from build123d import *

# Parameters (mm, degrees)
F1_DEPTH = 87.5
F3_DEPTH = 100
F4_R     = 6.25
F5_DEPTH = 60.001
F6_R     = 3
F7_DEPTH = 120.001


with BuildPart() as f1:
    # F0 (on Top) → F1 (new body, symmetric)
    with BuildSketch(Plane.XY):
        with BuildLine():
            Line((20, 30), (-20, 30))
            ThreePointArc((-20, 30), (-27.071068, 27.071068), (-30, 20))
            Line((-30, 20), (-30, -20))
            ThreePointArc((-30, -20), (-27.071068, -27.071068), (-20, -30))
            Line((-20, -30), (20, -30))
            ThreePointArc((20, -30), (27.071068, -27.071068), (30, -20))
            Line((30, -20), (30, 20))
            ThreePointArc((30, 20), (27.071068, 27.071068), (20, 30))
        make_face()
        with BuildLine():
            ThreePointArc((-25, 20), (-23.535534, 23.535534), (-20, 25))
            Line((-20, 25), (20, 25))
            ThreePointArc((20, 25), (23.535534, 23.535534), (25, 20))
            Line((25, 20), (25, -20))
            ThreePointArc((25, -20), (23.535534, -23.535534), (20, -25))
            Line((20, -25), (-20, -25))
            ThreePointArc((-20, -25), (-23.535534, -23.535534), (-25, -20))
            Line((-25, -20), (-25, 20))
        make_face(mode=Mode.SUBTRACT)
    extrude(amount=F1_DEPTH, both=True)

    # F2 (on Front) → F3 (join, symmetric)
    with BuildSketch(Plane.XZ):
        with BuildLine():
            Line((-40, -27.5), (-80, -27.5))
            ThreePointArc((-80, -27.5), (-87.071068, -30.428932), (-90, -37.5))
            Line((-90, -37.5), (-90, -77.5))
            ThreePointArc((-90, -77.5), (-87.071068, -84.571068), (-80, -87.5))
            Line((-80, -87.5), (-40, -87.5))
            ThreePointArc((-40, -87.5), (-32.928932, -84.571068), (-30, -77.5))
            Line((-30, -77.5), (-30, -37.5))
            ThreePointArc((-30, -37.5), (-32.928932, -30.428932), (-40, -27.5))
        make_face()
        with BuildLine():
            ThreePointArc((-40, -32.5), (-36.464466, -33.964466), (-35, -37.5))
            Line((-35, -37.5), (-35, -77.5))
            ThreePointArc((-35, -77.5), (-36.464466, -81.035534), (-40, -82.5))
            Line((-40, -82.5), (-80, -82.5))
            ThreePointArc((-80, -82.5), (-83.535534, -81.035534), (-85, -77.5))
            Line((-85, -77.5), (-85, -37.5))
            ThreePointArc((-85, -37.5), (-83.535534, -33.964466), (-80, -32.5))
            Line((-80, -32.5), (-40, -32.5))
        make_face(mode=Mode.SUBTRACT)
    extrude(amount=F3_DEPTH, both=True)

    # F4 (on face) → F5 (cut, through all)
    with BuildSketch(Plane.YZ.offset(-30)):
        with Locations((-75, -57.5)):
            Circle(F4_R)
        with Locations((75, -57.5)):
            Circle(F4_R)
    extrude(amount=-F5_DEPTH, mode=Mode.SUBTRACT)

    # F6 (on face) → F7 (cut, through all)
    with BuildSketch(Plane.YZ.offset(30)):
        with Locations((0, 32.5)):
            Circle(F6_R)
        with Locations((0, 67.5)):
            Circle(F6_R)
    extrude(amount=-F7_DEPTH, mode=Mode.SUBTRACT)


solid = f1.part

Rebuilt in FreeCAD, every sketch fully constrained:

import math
import FreeCAD as App
import Part
import Sketcher
from FreeCAD import Vector
Q = App.Units.Quantity

doc = App.newDocument("Part")
body = doc.addObject("PartDesign::Body", "Body")

sketch1 = doc.addObject("Sketcher::SketchObject", "Sketch")
body.addObject(sketch1)
sketch1.AttachmentSupport = (doc.XY_Plane, [""])
sketch1.MapMode = "FlatFace"
sketch1.addGeometry([
    Part.LineSegment(Vector(20, 30, 0), Vector(-20, 30, 0)),
    Part.ArcOfCircle(Part.Circle(Vector(-20.000001, 20.000001, 0), Vector(0, 0, 1), 9.999999), math.radians(89.999996), math.radians(180.000004)),
    Part.LineSegment(Vector(-30, 20, 0), Vector(-30, -20, 0)),
    Part.ArcOfCircle(Part.Circle(Vector(-20.000001, -20.000001, 0), Vector(0, 0, 1), 9.999999), math.radians(179.999996), math.radians(270.000004)),
    Part.LineSegment(Vector(-20, -30, 0), Vector(20, -30, 0)),
    Part.ArcOfCircle(Part.Circle(Vector(20.000001, -20.000001, 0), Vector(0, 0, 1), 9.999999), math.radians(-90.000004), math.radians(0.000004)),
    Part.LineSegment(Vector(30, -20, 0), Vector(30, 20, 0)),
    Part.ArcOfCircle(Part.Circle(Vector(20.000001, 20.000001, 0), Vector(0, 0, 1), 9.999999), math.radians(-0.000004), math.radians(90.000004)),
    Part.LineSegment(Vector(-25, -20, 0), Vector(-25, 20, 0)),
    Part.ArcOfCircle(Part.Circle(Vector(-20, 20, 0), Vector(0, 0, 1), 5), math.radians(89.999996), math.radians(180.000004)),
    Part.LineSegment(Vector(-20, 25, 0), Vector(20, 25, 0)),
    Part.ArcOfCircle(Part.Circle(Vector(20, 20, 0), Vector(0, 0, 1), 5), math.radians(-0.000004), math.radians(90.000004)),
    Part.LineSegment(Vector(25, 20, 0), Vector(25, -20, 0)),
    Part.ArcOfCircle(Part.Circle(Vector(20, -20, 0), Vector(0, 0, 1), 5), math.radians(-90.000004), math.radians(0.000004)),
    Part.LineSegment(Vector(20, -25, 0), Vector(-20, -25, 0)),
    Part.ArcOfCircle(Part.Circle(Vector(-20, -20, 0), Vector(0, 0, 1), 5), math.radians(179.999996), math.radians(270.000004)),
], False)
sketch1.addConstraint([
    Sketcher.Constraint("Tangent", 0, 2, 1, 1),
    Sketcher.Constraint("Tangent", 1, 2, 2, 1),
    Sketcher.Constraint("Tangent", 2, 2, 3, 1),
    Sketcher.Constraint("Tangent", 3, 2, 4, 1),
    Sketcher.Constraint("Tangent", 4, 2, 5, 1),
    Sketcher.Constraint("Tangent", 5, 2, 6, 1),
    Sketcher.Constraint("Tangent", 6, 2, 7, 1),
    Sketcher.Constraint("Tangent", 7, 2, 0, 1),
    Sketcher.Constraint("Tangent", 8, 2, 9, 2),
    Sketcher.Constraint("Tangent", 9, 1, 10, 1),
    Sketcher.Constraint("Tangent", 10, 2, 11, 2),
    Sketcher.Constraint("Tangent", 11, 1, 12, 1),
    Sketcher.Constraint("Tangent", 12, 2, 13, 2),
    Sketcher.Constraint("Tangent", 13, 1, 14, 1),
    Sketcher.Constraint("Tangent", 14, 2, 15, 2),
    Sketcher.Constraint("Tangent", 15, 1, 8, 1),
    Sketcher.Constraint("Horizontal", 0),
    Sketcher.Constraint("Vertical", 2),
    Sketcher.Constraint("Horizontal", 4),
    Sketcher.Constraint("Vertical", 6),
    Sketcher.Constraint("Vertical", 8),
    Sketcher.Constraint("Horizontal", 10),
    Sketcher.Constraint("Vertical", 12),
    Sketcher.Constraint("Horizontal", 14),
    Sketcher.Constraint("Coincident", 9, 3, 1, 3),
    Sketcher.Constraint("Coincident", 11, 3, 7, 3),
    Sketcher.Constraint("Coincident", 13, 3, 5, 3),
    Sketcher.Constraint("Equal", 1, 3),
    Sketcher.Constraint("Equal", 3, 5),
    Sketcher.Constraint("Equal", 5, 7),
    Sketcher.Constraint("Equal", 13, 15),
    Sketcher.Constraint("Symmetric", 1, 3, 5, 3, -1, 1),
    Sketcher.Constraint("Equal", 14, 2),
    Sketcher.Constraint("Radius", 1, Q("9.999999 mm")),
    Sketcher.Constraint("Radius", 9, Q("5 mm")),
    Sketcher.Constraint("DistanceX", 0, 2, 0, 1, Q("40 mm")),
])
pad1 = doc.addObject("PartDesign::Pad", "Pad")
body.addObject(pad1)
pad1.Profile = sketch1
pad1.Length = 175
pad1.Midplane = True

sketch2 = doc.addObject("Sketcher::SketchObject", "Sketch001")
body.addObject(sketch2)
sketch2.AttachmentSupport = (doc.XZ_Plane, [""])
sketch2.MapMode = "FlatFace"
sketch2.addGeometry([
    Part.LineSegment(Vector(-40, -27.5, 0), Vector(-80, -27.5, 0)),
    Part.ArcOfCircle(Part.Circle(Vector(-80.000001, -37.499999, 0), Vector(0, 0, 1), 9.999999), math.radians(89.999996), math.radians(180.000004)),
    Part.LineSegment(Vector(-90, -37.5, 0), Vector(-90, -77.5, 0)),
    Part.ArcOfCircle(Part.Circle(Vector(-80.000001, -77.500001, 0), Vector(0, 0, 1), 9.999999), math.radians(179.999996), math.radians(270.000004)),
    Part.LineSegment(Vector(-80, -87.5, 0), Vector(-40, -87.5, 0)),
    Part.ArcOfCircle(Part.Circle(Vector(-39.999999, -77.500001, 0), Vector(0, 0, 1), 9.999999), math.radians(-90.000004), math.radians(0.000004)),
    Part.LineSegment(Vector(-30, -77.5, 0), Vector(-30, -37.5, 0)),
    Part.ArcOfCircle(Part.Circle(Vector(-39.999999, -37.499999, 0), Vector(0, 0, 1), 9.999999), math.radians(-0.000004), math.radians(90.000004)),
    Part.LineSegment(Vector(-80, -32.5, 0), Vector(-40, -32.5, 0)),
    Part.ArcOfCircle(Part.Circle(Vector(-40, -37.5, 0), Vector(0, 0, 1), 5), math.radians(-0.000004), math.radians(90.000004)),
    Part.LineSegment(Vector(-35, -37.5, 0), Vector(-35, -77.5, 0)),
    Part.ArcOfCircle(Part.Circle(Vector(-40, -77.5, 0), Vector(0, 0, 1), 5), math.radians(-90.000004), math.radians(0.000004)),
    Part.LineSegment(Vector(-40, -82.5, 0), Vector(-80, -82.5, 0)),
    Part.ArcOfCircle(Part.Circle(Vector(-80, -77.5, 0), Vector(0, 0, 1), 5), math.radians(179.999996), math.radians(270.000004)),
    Part.LineSegment(Vector(-85, -77.5, 0), Vector(-85, -37.5, 0)),
    Part.ArcOfCircle(Part.Circle(Vector(-80, -37.5, 0), Vector(0, 0, 1), 5), math.radians(89.999996), math.radians(180.000004)),
], False)
sketch2.addConstraint([
    Sketcher.Constraint("Tangent", 0, 2, 1, 1),
    Sketcher.Constraint("Tangent", 1, 2, 2, 1),
    Sketcher.Constraint("Tangent", 2, 2, 3, 1),
    Sketcher.Constraint("Tangent", 3, 2, 4, 1),
    Sketcher.Constraint("Tangent", 4, 2, 5, 1),
    Sketcher.Constraint("Tangent", 5, 2, 6, 1),
    Sketcher.Constraint("Tangent", 6, 2, 7, 1),
    Sketcher.Constraint("Tangent", 7, 2, 0, 1),
    Sketcher.Constraint("Tangent", 8, 2, 9, 2),
    Sketcher.Constraint("Tangent", 9, 1, 10, 1),
    Sketcher.Constraint("Tangent", 10, 2, 11, 2),
    Sketcher.Constraint("Tangent", 11, 1, 12, 1),
    Sketcher.Constraint("Tangent", 12, 2, 13, 2),
    Sketcher.Constraint("Tangent", 13, 1, 14, 1),
    Sketcher.Constraint("Tangent", 14, 2, 15, 2),
    Sketcher.Constraint("Tangent", 15, 1, 8, 1),
    Sketcher.Constraint("Horizontal", 0),
    Sketcher.Constraint("Vertical", 2),
    Sketcher.Constraint("Horizontal", 4),
    Sketcher.Constraint("Vertical", 6),
    Sketcher.Constraint("Horizontal", 8),
    Sketcher.Constraint("Vertical", 10),
    Sketcher.Constraint("Horizontal", 12),
    Sketcher.Constraint("Vertical", 14),
    Sketcher.Constraint("Coincident", 9, 3, 7, 3),
    Sketcher.Constraint("Coincident", 11, 3, 5, 3),
    Sketcher.Constraint("Coincident", 13, 3, 3, 3),
    Sketcher.Constraint("Equal", 1, 3),
    Sketcher.Constraint("Equal", 3, 5),
    Sketcher.Constraint("Equal", 5, 7),
    Sketcher.Constraint("Equal", 13, 15),
    Sketcher.Constraint("Equal", 12, 2),
    Sketcher.Constraint("Radius", 1, Q("9.999999 mm")),
    Sketcher.Constraint("Radius", 9, Q("5 mm")),
    Sketcher.Constraint("DistanceX", 0, 2, 0, 1, Q("40 mm")),
    Sketcher.Constraint("DistanceX", 1, 3, -1, 1, Q("80.000001 mm")),
    Sketcher.Constraint("DistanceY", 1, 3, -1, 1, Q("37.499999 mm")),
])
pad2 = doc.addObject("PartDesign::Pad", "Pad001")
body.addObject(pad2)
pad2.Profile = sketch2
pad2.Length = 200
pad2.Midplane = True

sketch3 = doc.addObject("Sketcher::SketchObject", "Sketch002")
body.addObject(sketch3)
sketch3.AttachmentSupport = (doc.YZ_Plane, [""])
sketch3.MapMode = "FlatFace"
sketch3.AttachmentOffset = App.Placement(Vector(0, 0, -30), App.Rotation())
sketch3.addGeometry([
    Part.Circle(Vector(-75, -57.5, 0), Vector(0, 0, 1), 6.25),
    Part.Circle(Vector(75, -57.5, 0), Vector(0, 0, 1), 6.25),
], False)
sketch3.addConstraint([
    Sketcher.Constraint("Equal", 0, 1),
    Sketcher.Constraint("Symmetric", 0, 3, 1, 3, -2),
    Sketcher.Constraint("Diameter", 0, Q("12.5 mm")),
    Sketcher.Constraint("DistanceX", 0, 3, -1, 1, Q("75 mm")),
    Sketcher.Constraint("DistanceY", 0, 3, -1, 1, Q("57.5 mm")),
])
pocket1 = doc.addObject("PartDesign::Pocket", "Pocket")
body.addObject(pocket1)
pocket1.Profile = sketch3
pocket1.Type = "ThroughAll"

sketch4 = doc.addObject("Sketcher::SketchObject", "Sketch003")
body.addObject(sketch4)
sketch4.AttachmentSupport = (doc.YZ_Plane, [""])
sketch4.MapMode = "FlatFace"
sketch4.AttachmentOffset = App.Placement(Vector(0, 0, 30), App.Rotation())
sketch4.addGeometry([
    Part.Circle(Vector(0, 32.5, 0), Vector(0, 0, 1), 3),
    Part.Circle(Vector(0, 67.5, 0), Vector(0, 0, 1), 3),
], False)
sketch4.addConstraint([
    Sketcher.Constraint("Equal", 0, 1),
    Sketcher.Constraint("PointOnObject", 0, 3, -2),
    Sketcher.Constraint("PointOnObject", 1, 3, -2),
    Sketcher.Constraint("Diameter", 0, Q("6 mm")),
    Sketcher.Constraint("DistanceY", 0, 3, 1, 3, Q("35 mm")),
    Sketcher.Constraint("DistanceY", -1, 1, 0, 3, Q("32.5 mm")),
])
pocket2 = doc.addObject("PartDesign::Pocket", "Pocket001")
body.addObject(pocket2)
pocket2.Profile = sketch4
pocket2.Type = "ThroughAll"

doc.recompute()
